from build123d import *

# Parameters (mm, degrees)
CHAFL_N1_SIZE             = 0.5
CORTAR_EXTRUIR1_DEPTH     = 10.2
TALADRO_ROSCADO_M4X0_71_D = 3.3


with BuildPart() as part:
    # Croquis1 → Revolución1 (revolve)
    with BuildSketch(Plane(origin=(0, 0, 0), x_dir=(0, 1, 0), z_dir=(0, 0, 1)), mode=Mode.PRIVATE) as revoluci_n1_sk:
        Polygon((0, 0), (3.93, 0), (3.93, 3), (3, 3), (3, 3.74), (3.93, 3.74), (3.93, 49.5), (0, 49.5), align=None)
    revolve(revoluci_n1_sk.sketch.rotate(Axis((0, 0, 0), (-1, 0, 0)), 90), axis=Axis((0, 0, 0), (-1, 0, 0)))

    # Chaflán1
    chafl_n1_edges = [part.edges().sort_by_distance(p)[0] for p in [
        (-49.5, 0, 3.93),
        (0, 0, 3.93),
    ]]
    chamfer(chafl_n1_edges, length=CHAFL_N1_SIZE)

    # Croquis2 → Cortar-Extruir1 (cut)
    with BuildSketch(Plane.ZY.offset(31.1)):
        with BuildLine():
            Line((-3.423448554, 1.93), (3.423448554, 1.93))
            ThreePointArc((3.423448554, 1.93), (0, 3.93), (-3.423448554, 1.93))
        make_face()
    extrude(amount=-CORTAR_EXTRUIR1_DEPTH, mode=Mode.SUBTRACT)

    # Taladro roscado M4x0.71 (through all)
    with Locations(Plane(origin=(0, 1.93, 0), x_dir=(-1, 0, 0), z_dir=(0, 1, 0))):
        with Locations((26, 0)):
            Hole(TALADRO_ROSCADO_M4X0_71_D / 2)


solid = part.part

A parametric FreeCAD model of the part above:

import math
import FreeCAD as App
import Part
import Sketcher
Q = App.Units.Quantity


def edges_at(feature, points):
    """Names of the edges that pass closest to the given points."""
    edges = feature.Shape.Edges
    near = lambda p: min(range(len(edges)), key=lambda i: edges[i].distToShape(Part.Vertex(*p))[0])
    return sorted({f"Edge{near(p) + 1}" for p in points})

doc = App.newDocument("Part")
params = doc.addObject("Spreadsheet::Sheet", "Params")
for row, (alias, value) in enumerate([
    ("sketch1_width", "3 mm"),
    ("sketch1_width2", "49.5 mm"),
    ("sketch1_width3", "0.74 mm"),
    ("sketch1_height", "3.93 mm"),
    ("revolution_angle", "360 deg"),
    ("chamfer_size", "0.5 mm"),
    ("sketch2_radius", "3.93 mm"),
    ("pocket1_length", "10.2 mm"),
    ("sketch3_diameter", "3.3 mm"),
    ("hole_diameter", "3.3 mm"),
], start=1):
    params.set(f"A{row}", alias)
    params.set(f"B{row}", "=" + value)
    params.setAlias(f"B{row}", alias)

body = doc.addObject("PartDesign::Body", "Body")

sketch1 = body.newObject("Sketcher::SketchObject", "Sketch")
sketch1.AttachmentSupport = (doc.getObject("XY_Plane"), [""])
sketch1.MapMode = "FlatFace"
sketch1.addGeometry(Part.LineSegment(App.Vector(0, 0, 0), App.Vector(0, 3.9, 0)), False)
sketch1.addGeometry(Part.LineSegment(App.Vector(0, 3.9, 0), App.Vector(-3, 3.9, 0)), False)
sketch1.addGeometry(Part.LineSegment(App.Vector(-3, 3.9, 0), App.Vector(-3, 3, 0)), False)
sketch1.addGeometry(Part.LineSegment(App.Vector(-3, 3, 0), App.Vector(-3.7, 3, 0)), False)
sketch1.addGeometry(Part.LineSegment(App.Vector(-3.7, 3, 0), App.Vector(-3.7, 3.9, 0)), False)
sketch1.addGeometry(Part.LineSegment(App.Vector(-3.7, 3.9, 0), App.Vector(-49.5, 3.9, 0)), False)
sketch1.addGeometry(Part.LineSegment(App.Vector(-49.5, 3.9, 0), App.Vector(-49.5, 0, 0)), False)
sketch1.addGeometry(Part.LineSegment(App.Vector(-49.5, 0, 0), App.Vector(0, 0, 0)), False)
sketch1.addConstraint(Sketcher.Constraint("Coincident", 0, 2, 1, 1))
sketch1.addConstraint(Sketcher.Constraint("Coincident", 1, 2, 2, 1))
sketch1.addConstraint(Sketcher.Constraint("Coincident", 2, 2, 3, 1))
sketch1.addConstraint(Sketcher.Constraint("Coincident", 3, 2, 4, 1))
sketch1.addConstraint(Sketcher.Constraint("Coincident", 4, 2, 5, 1))
sketch1.addConstraint(Sketcher.Constraint("Coincident", 5, 2, 6, 1))
sketch1.addConstraint(Sketcher.Constraint("Coincident", 6, 2, 7, 1))
sketch1.addConstraint(Sketcher.Constraint("Coincident", 7, 2, 0, 1))
sketch1.addConstraint(Sketcher.Constraint("Vertical", 0))
sketch1.addConstraint(Sketcher.Constraint("Horizontal", 1))
sketch1.addConstraint(Sketcher.Constraint("Vertical", 2))
sketch1.addConstraint(Sketcher.Constraint("Horizontal", 3))
sketch1.addConstraint(Sketcher.Constraint("Vertical", 4))
sketch1.addConstraint(Sketcher.Constraint("Horizontal", 5))
sketch1.addConstraint(Sketcher.Constraint("Vertical", 6))
sketch1.addConstraint(Sketcher.Constraint("Horizontal", 7))
sketch1.addConstraint(Sketcher.Constraint("Coincident", 7, 2, -1, 1))
sketch1.addConstraint(Sketcher.Constraint("Horizontal", 1, 2, 4, 2))
sketch1.addConstraint(Sketcher.Constraint("DistanceX", 1, 2, 1, 1, Q("3 mm")))
sketch1.addConstraint(Sketcher.Constraint("DistanceX", 7, 1, 7, 2, Q("49.5 mm")))
sketch1.addConstraint(Sketcher.Constraint("DistanceY", -1, 1, 2, 2, Q("3 mm")))
sketch1.addConstraint(Sketcher.Constraint("DistanceX", 3, 2, 3, 1, Q("0.74 mm")))
sketch1.addConstraint(Sketcher.Constraint("DistanceY", 0, 1, 0, 2, Q("3.93 mm")))
sketch1.setExpression("Constraints[18]", "Params.sketch1_width")
sketch1.setExpression("Constraints[19]", "Params.sketch1_width2")
sketch1.setExpression("Constraints[21]", "Params.sketch1_width3")
sketch1.setExpression("Constraints[22]", "Params.sketch1_height")
revolution = body.newObject("PartDesign::Revolution", "Revolution")
revolution.Profile = sketch1
revolution.ReferenceAxis = (sketch1, ["H_Axis"])
revolution.setExpression("Angle", "Params.revolution_angle")
doc.recompute()

chamfer = body.newObject("PartDesign::Chamfer", "Chamfer")
chamfer.Base = (revolution, edges_at(revolution, [(-49.5, 0, 3.93), (0, 0, 3.93)]))
chamfer.setExpression("Size", "Params.chamfer_size")

sketch2 = body.newObject("Sketcher::SketchObject", "Sketch001")
sketch2.AttachmentSupport = (doc.getObject("YZ_Plane"), [""])
sketch2.MapMode = "FlatFace"
sketch2.AttachmentOffset = App.Placement(App.Vector(0, 0, -31.1), App.Rotation())
sketch2.addGeometry(Part.LineSegment(App.Vector(1.9, -3.4, 0), App.Vector(1.9, 3.4, 0)), False)
sketch2.addGeometry(Part.ArcOfCircle(Part.Circle(App.Vector(0, 0, 0), App.Vector(0, 0, 1), 3.9), math.radians(-61), math.radians(61)), False)
sketch2.addConstraint(Sketcher.Constraint("Coincident", 0, 1, 1, 1))
sketch2.addConstraint(Sketcher.Constraint("Coincident", 1, 2, 0, 2))
sketch2.addConstraint(Sketcher.Constraint("Vertical", 0))
sketch2.addConstraint(Sketcher.Constraint("Coincident", 1, 3, -1, 1))
sketch2.addConstraint(Sketcher.Constraint("Radius", 1, Q("3.93 mm")))
sketch2.addConstraint(Sketcher.Constraint("DistanceX", -1, 1, 0, 1, Q("1.93 mm")))
sketch2.setExpression("Constraints[4]", "Params.sketch2_radius")
pocket1 = body.newObject("PartDesign::Pocket", "Pocket")
pocket1.Profile = sketch2
pocket1.setExpression("Length", "Params.pocket1_length")
pocket1.Reversed = True

sketch3 = body.newObject("Sketcher::SketchObject", "Sketch002")
sketch3.AttachmentSupport = (doc.getObject("XZ_Plane"), [""])
sketch3.MapMode = "FlatFace"
sketch3.AttachmentOffset = App.Placement(App.Vector(0, 0, -1.93), App.Rotation())
sketch3.addGeometry(Part.Circle(App.Vector(-26, 0, 0), App.Vector(0, 0, 1), 1.6), False)
sketch3.addConstraint(Sketcher.Constraint("PointOnObject", 0, 3, -1))
sketch3.addConstraint(Sketcher.Constraint("Diameter", 0, Q("3.3 mm")))
sketch3.addConstraint(Sketcher.Constraint("DistanceX", 0, 3, -1, 1, Q("26 mm")))
sketch3.setExpression("Constraints[1]", "Params.sketch3_diameter")
doc.recompute()
hole = body.newObject("PartDesign::Hole", "Hole")
hole.Profile = sketch3
hole.ThreadType = "None"
hole.setExpression("Diameter", "Params.hole_diameter")
hole.DepthType = "ThroughAll"
hole.Reversed = True

doc.recompute()
